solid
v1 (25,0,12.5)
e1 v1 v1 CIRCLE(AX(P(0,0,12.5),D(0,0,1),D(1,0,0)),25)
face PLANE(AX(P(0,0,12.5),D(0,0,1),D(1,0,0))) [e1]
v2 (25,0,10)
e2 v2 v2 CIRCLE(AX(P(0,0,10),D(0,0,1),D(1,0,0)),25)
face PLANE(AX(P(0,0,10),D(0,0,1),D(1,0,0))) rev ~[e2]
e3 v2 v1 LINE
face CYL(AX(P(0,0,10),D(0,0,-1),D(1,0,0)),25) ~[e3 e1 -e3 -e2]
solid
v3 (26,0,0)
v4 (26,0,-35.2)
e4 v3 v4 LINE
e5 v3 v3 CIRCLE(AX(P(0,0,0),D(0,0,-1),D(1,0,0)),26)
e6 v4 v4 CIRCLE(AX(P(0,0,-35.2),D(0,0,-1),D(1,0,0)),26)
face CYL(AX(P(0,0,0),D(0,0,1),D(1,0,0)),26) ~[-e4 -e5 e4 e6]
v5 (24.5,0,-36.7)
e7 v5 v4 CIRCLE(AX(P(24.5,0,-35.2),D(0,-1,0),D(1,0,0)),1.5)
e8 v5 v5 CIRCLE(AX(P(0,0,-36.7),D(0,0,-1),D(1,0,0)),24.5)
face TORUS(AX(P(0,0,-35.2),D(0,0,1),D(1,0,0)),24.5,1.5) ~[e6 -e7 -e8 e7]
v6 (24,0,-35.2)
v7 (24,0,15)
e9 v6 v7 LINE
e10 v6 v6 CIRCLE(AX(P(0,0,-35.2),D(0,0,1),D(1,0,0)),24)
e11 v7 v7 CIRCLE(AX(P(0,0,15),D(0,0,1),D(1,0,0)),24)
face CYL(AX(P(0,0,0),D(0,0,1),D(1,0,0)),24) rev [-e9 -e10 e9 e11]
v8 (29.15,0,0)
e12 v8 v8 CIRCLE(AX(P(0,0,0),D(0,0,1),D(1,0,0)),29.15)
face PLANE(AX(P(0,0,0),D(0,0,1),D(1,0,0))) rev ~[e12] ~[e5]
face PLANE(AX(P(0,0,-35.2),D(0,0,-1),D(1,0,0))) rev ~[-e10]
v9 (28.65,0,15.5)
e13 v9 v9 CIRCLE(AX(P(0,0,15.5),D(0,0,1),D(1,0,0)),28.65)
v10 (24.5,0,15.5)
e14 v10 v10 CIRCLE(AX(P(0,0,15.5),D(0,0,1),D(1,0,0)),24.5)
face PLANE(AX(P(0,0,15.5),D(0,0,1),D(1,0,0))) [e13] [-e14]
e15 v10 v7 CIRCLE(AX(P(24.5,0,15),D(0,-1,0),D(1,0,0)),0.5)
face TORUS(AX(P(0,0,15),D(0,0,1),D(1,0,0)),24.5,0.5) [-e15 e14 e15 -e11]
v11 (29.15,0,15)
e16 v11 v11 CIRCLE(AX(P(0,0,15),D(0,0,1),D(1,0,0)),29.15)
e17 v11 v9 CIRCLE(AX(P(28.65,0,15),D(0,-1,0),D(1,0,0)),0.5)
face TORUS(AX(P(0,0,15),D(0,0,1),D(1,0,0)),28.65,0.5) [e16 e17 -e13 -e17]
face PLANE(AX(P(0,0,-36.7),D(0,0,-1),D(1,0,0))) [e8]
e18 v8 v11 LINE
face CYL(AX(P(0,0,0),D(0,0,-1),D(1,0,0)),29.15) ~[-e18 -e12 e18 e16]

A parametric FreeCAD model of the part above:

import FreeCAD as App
import Part
import Sketcher

V = App.Vector


def edges_at(feature, points):
    """Names of the edges that pass closest to the given points."""
    edges = feature.Shape.Edges
    near = lambda p: min(range(len(edges)), key=lambda i: edges[i].distToShape(Part.Vertex(*p))[0])
    return sorted({f"Edge{near(p) + 1}" for p in points})

doc = App.newDocument("Part")
body = doc.addObject("PartDesign::Body", "Body")

sketch1 = body.newObject("Sketcher::SketchObject", "Sketch")
sketch1.AttachmentSupport = (doc.getObject("XY_Plane"), [""])
sketch1.MapMode = "FlatFace"
sketch1.addGeometry([
    Part.Circle(V(0, 0, 0), V(0, 0, 1), 29),
    Part.Circle(V(0, 0, 0), V(0, 0, 1), 24),
], False)
sketch1.addConstraint([
    Sketcher.Constraint("Coincident", 0, 3, -1, 1),
    Sketcher.Constraint("Coincident", 1, 3, -1, 1),
    Sketcher.Constraint("Diameter", 1, 48.0),
    Sketcher.Constraint("Diameter", 0, 58.3),
])
pad1 = body.newObject("PartDesign::Pad", "Pad")
pad1.Profile = sketch1
pad1.Length = 15.5

sketch2 = body.newObject("Sketcher::SketchObject", "Sketch001")
sketch2.AttachmentSupport = (doc.getObject("XY_Plane"), [""])
sketch2.MapMode = "FlatFace"
sketch2.addGeometry([
    Part.Circle(V(0, 0, 0), V(0, 0, 1), 26),
    Part.Circle(V(0, 0, 0), V(0, 0, 1), 24),
], False)
sketch2.addConstraint([
    Sketcher.Constraint("Coincident", 0, 3, -1, 1),
    Sketcher.Constraint("Coincident", 1, 3, -1, 1),
    Sketcher.Constraint("Diameter", 0, 52.0),
    Sketcher.Constraint("Diameter", 1, 48.0),
])
pad2 = body.newObject("PartDesign::Pad", "Pad001")
pad2.Profile = sketch2
pad2.Length = 36.7
pad2.Reversed = True

sketch3 = body.newObject("Sketcher::SketchObject", "Sketch002")
sketch3.AttachmentSupport = (doc.getObject("XY_Plane"), [""])
sketch3.MapMode = "FlatFace"
sketch3.AttachmentOffset = App.Placement(V(0, 0, -36.7), App.Rotation())
sketch3.addGeometry(Part.Circle(V(0, 0, 0), V(0, 0, 1), 26), False)
sketch3.addConstraint([
    Sketcher.Constraint("Coincident", 0, 3, -1, 1),
    Sketcher.Constraint("Diameter", 0, 51.0),
])
pad3 = body.newObject("PartDesign::Pad", "Pad002")
pad3.Profile = sketch3
pad3.Length = 1.5
doc.recompute()

fillet = body.newObject("PartDesign::Fillet", "Fillet")
fillet.Base = (pad3, edges_at(pad3, [(-26, 0, -36.7)]))
fillet.Radius = 1.5
doc.recompute()

fillet2 = body.newObject("PartDesign::Fillet", "Fillet001")
fillet2.Base = (fillet, edges_at(fillet, [(-29.15, 0, 15.5), (-24, 0, 15.5)]))
fillet2.Radius = 0.5
body2 = doc.addObject("PartDesign::Body", "Body001")

sketch4 = body2.newObject("Sketcher::SketchObject", "Sketch003")
sketch4.AttachmentSupport = (doc.getObject("XY_Plane001"), [""])
sketch4.MapMode = "FlatFace"
sketch4.AttachmentOffset = App.Placement(V(0, 0, 10), App.Rotation())
sketch4.addGeometry(Part.Circle(V(0, 0, 0), V(0, 0, 1), 25), False)
sketch4.addConstraint([
    Sketcher.Constraint("Coincident", 0, 3, -1, 1),
    Sketcher.Constraint("Diameter", 0, 50.0),
])
pad4 = body2.newObject("PartDesign::Pad", "Pad003")
pad4.Profile = sketch4
pad4.Length = 2.5

doc.recompute()
